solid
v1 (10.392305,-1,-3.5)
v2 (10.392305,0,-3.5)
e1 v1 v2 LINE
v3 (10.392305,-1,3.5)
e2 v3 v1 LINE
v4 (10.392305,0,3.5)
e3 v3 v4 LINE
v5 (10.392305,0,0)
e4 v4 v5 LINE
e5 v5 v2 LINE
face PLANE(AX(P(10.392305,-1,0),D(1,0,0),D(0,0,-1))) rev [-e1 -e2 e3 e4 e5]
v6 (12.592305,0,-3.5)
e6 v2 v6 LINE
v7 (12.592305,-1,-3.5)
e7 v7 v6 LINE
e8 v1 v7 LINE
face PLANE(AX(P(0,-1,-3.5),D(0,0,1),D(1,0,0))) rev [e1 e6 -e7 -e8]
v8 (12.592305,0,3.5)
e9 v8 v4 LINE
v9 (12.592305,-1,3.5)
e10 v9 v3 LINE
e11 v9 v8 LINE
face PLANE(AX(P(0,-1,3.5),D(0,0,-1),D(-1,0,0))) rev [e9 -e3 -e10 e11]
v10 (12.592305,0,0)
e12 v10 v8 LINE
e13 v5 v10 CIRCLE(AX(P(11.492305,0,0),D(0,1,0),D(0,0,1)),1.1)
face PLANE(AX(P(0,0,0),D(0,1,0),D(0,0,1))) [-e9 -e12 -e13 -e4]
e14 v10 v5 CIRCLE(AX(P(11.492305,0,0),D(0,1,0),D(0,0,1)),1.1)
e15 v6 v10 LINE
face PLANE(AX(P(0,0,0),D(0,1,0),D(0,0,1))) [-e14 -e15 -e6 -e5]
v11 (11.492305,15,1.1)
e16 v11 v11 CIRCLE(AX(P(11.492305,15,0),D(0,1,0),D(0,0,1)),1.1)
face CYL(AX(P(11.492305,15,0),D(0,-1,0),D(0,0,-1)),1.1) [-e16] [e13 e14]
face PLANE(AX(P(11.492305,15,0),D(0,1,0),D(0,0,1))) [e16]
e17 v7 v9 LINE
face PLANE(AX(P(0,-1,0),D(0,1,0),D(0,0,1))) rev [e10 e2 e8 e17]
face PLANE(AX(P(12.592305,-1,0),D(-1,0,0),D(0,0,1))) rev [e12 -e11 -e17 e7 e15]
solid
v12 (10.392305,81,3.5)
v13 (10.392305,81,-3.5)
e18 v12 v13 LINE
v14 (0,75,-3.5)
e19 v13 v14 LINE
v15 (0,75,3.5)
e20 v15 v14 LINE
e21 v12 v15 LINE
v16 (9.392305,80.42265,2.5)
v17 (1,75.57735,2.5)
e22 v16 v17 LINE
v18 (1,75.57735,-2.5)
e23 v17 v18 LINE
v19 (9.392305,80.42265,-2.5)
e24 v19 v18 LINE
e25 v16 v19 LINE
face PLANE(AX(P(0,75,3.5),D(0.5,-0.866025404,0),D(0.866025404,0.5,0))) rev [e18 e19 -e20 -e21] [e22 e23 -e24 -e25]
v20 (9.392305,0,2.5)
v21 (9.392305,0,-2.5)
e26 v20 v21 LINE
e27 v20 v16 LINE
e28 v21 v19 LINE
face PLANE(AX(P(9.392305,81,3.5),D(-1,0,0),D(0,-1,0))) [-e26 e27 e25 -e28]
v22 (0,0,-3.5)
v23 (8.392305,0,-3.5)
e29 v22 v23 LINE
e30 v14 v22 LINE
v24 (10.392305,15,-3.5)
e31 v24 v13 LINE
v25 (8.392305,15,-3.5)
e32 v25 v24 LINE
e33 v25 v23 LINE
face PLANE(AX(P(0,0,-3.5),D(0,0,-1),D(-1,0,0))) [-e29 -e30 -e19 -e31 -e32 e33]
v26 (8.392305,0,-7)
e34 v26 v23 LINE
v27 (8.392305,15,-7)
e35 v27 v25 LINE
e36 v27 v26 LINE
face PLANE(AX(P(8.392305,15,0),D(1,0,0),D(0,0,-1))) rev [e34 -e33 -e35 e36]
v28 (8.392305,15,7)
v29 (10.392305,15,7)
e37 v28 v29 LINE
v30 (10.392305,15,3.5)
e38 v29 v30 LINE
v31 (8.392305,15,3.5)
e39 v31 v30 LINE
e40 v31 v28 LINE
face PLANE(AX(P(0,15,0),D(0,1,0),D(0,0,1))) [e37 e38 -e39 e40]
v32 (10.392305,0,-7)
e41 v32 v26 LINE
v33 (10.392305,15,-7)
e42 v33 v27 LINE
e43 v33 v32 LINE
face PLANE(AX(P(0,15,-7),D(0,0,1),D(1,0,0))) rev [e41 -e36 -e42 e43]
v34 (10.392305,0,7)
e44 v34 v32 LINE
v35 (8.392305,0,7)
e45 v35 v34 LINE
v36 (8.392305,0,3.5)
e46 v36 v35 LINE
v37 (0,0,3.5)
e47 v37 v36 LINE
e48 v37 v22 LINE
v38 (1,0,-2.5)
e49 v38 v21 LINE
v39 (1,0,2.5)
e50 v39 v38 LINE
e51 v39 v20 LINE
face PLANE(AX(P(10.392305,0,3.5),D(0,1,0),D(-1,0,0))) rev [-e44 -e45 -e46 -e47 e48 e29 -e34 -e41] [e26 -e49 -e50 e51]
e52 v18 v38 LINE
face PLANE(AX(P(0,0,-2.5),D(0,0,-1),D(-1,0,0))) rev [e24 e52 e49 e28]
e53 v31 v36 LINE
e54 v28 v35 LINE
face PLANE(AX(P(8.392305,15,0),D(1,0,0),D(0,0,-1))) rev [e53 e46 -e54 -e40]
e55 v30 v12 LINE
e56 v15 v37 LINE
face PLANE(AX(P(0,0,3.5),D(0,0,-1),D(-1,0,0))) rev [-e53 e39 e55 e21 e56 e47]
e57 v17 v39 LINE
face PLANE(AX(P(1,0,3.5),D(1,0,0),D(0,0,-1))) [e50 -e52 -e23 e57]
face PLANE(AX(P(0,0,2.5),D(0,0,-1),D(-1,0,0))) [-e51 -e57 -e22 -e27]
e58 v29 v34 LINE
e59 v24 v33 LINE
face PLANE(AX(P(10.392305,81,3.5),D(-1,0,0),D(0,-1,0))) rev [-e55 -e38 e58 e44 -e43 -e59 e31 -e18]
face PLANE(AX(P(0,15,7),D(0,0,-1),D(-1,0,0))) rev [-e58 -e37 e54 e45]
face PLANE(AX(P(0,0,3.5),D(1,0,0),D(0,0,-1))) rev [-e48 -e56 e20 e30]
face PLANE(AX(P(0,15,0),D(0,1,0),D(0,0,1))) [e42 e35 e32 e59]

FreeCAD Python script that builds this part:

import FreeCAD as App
import Part
import Sketcher

V = App.Vector
Q = App.Units.Quantity


def faces_at(feature, points):
    """Names of the faces that lie closest to the given points."""
    faces = feature.Shape.Faces
    near = lambda p: min(range(len(faces)), key=lambda i: faces[i].distToShape(Part.Vertex(*p))[0])
    return sorted({f"Face{near(p) + 1}" for p in points})

doc = App.newDocument("Part")
body = doc.addObject("PartDesign::Body", "Body")
body.AllowCompound = True

sketch1 = body.newObject("Sketcher::SketchObject", "Sketch")
sketch1.AttachmentSupport = (doc.getObject("XY_Plane"), [""])
sketch1.MapMode = "FlatFace"
sketch1.addGeometry([
    Part.LineSegment(V(0, 75, 0), V(0, 0, 0)),
    Part.LineSegment(V(0, 0, 0), V(10, 0, 0)),
    Part.LineSegment(V(10, 0, 0), V(10, 81, 0)),
    Part.LineSegment(V(10, 81, 0), V(0, 75, 0)),
], False)
sketch1.addConstraint([
    Sketcher.Constraint("Coincident", 0, 2, 1, 1),
    Sketcher.Constraint("Coincident", 1, 2, 2, 1),
    Sketcher.Constraint("Coincident", 2, 2, 3, 1),
    Sketcher.Constraint("Coincident", 3, 2, 0, 1),
    Sketcher.Constraint("Vertical", 0),
    Sketcher.Constraint("Horizontal", 1),
    Sketcher.Constraint("Vertical", 2),
    Sketcher.Constraint("Coincident", 0, 2, -1, 1),
    Sketcher.Constraint("DistanceY", 0, 2, 0, 1, 75.0),
    Sketcher.Constraint("DistanceY", 2, 1, 2, 2, 81.0),
    Sketcher.Constraint("Angle", 3, Q("-150 deg")),
])
pad1 = body.newObject("PartDesign::Pad", "Pad")
pad1.Profile = sketch1
pad1.Length = 7
pad1.Midplane = True
doc.recompute()

thickness = body.newObject("PartDesign::Thickness", "Thickness")
thickness.Base = (pad1, faces_at(pad1, [(5.196, 78, 0), (5.196, 0, 0)]))
thickness.Value = 1
thickness.Reversed = True
thickness.Join = "Intersection"

sketch2 = body.newObject("Sketcher::SketchObject", "Sketch001")
sketch2.AttachmentSupport = (doc.getObject("XZ_Plane"), [""])
sketch2.MapMode = "FlatFace"
sketch2.addGeometry([
    Part.LineSegment(V(8.4, -7, 0), V(8.4, -3.5, 0)),
    Part.LineSegment(V(8.4, -3.5, 0), V(10.4, -3.5, 0)),
    Part.LineSegment(V(10.4, -3.5, 0), V(10.4, -7, 0)),
    Part.LineSegment(V(10.4, -7, 0), V(8.4, -7, 0)),
    Part.LineSegment(V(8.4, 3.5, 0), V(8.4, 7, 0)),
    Part.LineSegment(V(8.4, 7, 0), V(10.4, 7, 0)),
    Part.LineSegment(V(10.4, 7, 0), V(10.4, 3.5, 0)),
    Part.LineSegment(V(10.4, 3.5, 0), V(8.4, 3.5, 0)),
    Part.Circle(V(11.5, 0, 0), V(0, 0, 1), 1.1),
], False)
sketch2.addConstraint([
    Sketcher.Constraint("Coincident", 0, 2, 1, 1),
    Sketcher.Constraint("Coincident", 1, 2, 2, 1),
    Sketcher.Constraint("Coincident", 2, 2, 3, 1),
    Sketcher.Constraint("Coincident", 3, 2, 0, 1),
    Sketcher.Constraint("Coincident", 4, 2, 5, 1),
    Sketcher.Constraint("Coincident", 5, 2, 6, 1),
    Sketcher.Constraint("Coincident", 6, 2, 7, 1),
    Sketcher.Constraint("Coincident", 7, 2, 4, 1),
    Sketcher.Constraint("Vertical", 0),
    Sketcher.Constraint("Horizontal", 1),
    Sketcher.Constraint("Vertical", 2),
    Sketcher.Constraint("Horizontal", 3),
    Sketcher.Constraint("Vertical", 4),
    Sketcher.Constraint("Horizontal", 5),
    Sketcher.Constraint("Vertical", 6),
    Sketcher.Constraint("Horizontal", 7),
    Sketcher.Constraint("Symmetric", 3, 2, 4, 2, -1),
    Sketcher.Constraint("Symmetric", 1, 2, 6, 2, -1),
    Sketcher.Constraint("PointOnObject", 8, 3, -1),
    Sketcher.Constraint("Diameter", 8, 2.2),
    Sketcher.Constraint("DistanceX", 1, 1, 1, 2, 2.0),
    Sketcher.Constraint("DistanceY", 0, 1, 0, 2, 3.5),
    Sketcher.Constraint("DistanceY", 2, 2, -1, 1, 7.0),
    Sketcher.Constraint("DistanceX", 0, 2, 8, 3, 3.1),
    Sketcher.Constraint("DistanceX", -1, 1, 8, 3, 11.492305),
])
pad2 = body.newObject("PartDesign::Pad", "Pad001")
pad2.Profile = sketch2
pad2.Length = 15
pad2.Reversed = True

sketch3 = body.newObject("Sketcher::SketchObject", "Sketch002")
sketch3.AttachmentSupport = (doc.getObject("XZ_Plane"), [""])
sketch3.MapMode = "FlatFace"
sketch3.addGeometry([
    Part.LineSegment(V(10.4, -3.5, 0), V(10.4, 3.5, 0)),
    Part.LineSegment(V(10.4, 3.5, 0), V(12.6, 3.5, 0)),
    Part.LineSegment(V(12.6, 3.5, 0), V(12.6, -3.5, 0)),
    Part.LineSegment(V(12.6, -3.5, 0), V(10.4, -3.5, 0)),
], False)
sketch3.addConstraint([
    Sketcher.Constraint("Coincident", 0, 2, 1, 1),
    Sketcher.Constraint("Coincident", 1, 2, 2, 1),
    Sketcher.Constraint("Coincident", 2, 2, 3, 1),
    Sketcher.Constraint("Coincident", 3, 2, 0, 1),
    Sketcher.Constraint("Vertical", 0),
    Sketcher.Constraint("Horizontal", 1),
    Sketcher.Constraint("Vertical", 2),
    Sketcher.Constraint("Horizontal", 3),
    Sketcher.Constraint("DistanceY", 0, 1, 0, 2, 7.0),
    Sketcher.Constraint("DistanceX", 1, 1, 1, 2, 2.2),
    Sketcher.Constraint("DistanceY", -1, 1, 0, 2, 3.5),
    Sketcher.Constraint("DistanceX", -1, 1, 0, 2, 10.392305),
])
pad3 = body.newObject("PartDesign::Pad", "Pad002")
pad3.Profile = sketch3
pad3.Length = 1

doc.recompute()
